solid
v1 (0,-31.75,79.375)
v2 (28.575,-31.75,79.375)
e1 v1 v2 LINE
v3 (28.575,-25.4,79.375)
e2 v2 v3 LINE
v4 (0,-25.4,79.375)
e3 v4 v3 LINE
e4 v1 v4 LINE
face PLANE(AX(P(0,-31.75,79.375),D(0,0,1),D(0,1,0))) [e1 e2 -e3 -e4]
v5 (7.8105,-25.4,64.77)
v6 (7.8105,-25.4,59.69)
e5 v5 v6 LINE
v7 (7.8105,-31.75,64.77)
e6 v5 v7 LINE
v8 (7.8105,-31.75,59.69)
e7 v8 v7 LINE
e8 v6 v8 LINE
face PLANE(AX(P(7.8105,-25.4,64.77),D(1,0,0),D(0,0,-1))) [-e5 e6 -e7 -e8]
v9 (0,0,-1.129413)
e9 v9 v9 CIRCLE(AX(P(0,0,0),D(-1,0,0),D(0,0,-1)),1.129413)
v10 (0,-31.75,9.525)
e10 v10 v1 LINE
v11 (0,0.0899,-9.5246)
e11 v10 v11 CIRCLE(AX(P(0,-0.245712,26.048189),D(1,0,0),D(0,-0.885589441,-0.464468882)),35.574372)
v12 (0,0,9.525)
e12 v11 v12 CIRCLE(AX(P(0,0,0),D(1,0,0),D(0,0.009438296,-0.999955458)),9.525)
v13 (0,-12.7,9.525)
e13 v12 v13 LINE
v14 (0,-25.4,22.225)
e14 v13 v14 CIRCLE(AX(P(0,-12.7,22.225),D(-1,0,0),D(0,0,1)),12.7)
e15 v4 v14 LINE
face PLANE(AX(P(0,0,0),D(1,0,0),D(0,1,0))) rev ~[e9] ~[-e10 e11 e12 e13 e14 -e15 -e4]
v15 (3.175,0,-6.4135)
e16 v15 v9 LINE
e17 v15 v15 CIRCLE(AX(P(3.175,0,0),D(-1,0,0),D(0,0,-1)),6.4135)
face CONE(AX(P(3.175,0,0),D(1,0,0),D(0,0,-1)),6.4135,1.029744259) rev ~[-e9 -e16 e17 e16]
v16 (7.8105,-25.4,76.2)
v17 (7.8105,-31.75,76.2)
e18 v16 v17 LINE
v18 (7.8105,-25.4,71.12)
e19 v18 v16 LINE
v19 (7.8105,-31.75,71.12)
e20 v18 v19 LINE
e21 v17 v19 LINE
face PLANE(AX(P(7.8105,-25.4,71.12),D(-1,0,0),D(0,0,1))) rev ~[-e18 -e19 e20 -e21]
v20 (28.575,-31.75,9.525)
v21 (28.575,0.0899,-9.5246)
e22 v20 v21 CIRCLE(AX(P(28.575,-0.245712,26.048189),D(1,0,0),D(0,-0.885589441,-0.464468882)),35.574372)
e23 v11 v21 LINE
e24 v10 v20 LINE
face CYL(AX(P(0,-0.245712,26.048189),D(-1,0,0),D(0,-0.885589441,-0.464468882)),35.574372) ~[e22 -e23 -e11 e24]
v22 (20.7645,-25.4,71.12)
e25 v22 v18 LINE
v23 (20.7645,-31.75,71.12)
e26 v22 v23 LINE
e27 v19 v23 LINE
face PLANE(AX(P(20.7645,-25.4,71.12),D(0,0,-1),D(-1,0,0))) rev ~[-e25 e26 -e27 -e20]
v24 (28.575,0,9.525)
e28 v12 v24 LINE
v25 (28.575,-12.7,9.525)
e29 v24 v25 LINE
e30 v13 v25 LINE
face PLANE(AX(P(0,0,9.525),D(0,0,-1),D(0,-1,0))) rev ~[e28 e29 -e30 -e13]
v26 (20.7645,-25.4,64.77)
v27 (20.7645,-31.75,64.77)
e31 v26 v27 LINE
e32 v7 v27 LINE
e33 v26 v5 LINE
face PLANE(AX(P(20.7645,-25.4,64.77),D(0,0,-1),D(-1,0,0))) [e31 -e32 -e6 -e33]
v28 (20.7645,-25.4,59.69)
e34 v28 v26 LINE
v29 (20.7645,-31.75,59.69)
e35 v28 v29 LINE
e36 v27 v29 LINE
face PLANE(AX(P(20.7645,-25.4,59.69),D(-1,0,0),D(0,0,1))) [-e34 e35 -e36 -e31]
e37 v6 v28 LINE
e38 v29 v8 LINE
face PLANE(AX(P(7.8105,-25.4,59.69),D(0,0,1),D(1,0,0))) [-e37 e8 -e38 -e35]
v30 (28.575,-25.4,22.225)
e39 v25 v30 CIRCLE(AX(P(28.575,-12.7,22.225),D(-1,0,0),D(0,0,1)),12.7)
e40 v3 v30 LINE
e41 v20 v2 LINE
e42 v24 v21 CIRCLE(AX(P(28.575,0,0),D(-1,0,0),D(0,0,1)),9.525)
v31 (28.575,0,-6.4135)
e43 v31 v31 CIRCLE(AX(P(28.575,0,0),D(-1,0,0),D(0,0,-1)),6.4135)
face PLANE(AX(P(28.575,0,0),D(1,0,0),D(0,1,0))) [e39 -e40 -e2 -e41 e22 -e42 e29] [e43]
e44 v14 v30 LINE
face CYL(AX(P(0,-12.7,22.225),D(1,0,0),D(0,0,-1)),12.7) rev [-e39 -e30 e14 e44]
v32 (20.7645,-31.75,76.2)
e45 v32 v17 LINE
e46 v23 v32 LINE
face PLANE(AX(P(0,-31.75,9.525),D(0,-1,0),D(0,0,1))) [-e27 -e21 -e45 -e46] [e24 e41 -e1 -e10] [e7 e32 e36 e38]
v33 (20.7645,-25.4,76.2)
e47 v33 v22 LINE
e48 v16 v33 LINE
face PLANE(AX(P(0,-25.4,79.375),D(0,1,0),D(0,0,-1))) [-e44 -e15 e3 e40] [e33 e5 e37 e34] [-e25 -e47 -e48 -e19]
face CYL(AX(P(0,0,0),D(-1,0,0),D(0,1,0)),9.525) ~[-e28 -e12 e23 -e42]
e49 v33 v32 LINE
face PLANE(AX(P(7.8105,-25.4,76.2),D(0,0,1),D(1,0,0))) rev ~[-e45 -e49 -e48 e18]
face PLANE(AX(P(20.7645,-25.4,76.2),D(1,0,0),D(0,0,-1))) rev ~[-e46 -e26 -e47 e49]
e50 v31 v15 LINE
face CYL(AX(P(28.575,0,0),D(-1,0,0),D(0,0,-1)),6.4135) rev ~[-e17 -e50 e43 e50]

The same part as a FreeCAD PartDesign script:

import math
import FreeCAD as App
import Part
import Sketcher
Q = App.Units.Quantity


def edges_at(feature, points):
    """Names of the edges that pass closest to the given points."""
    edges = feature.Shape.Edges
    near = lambda p: min(range(len(edges)), key=lambda i: edges[i].distToShape(Part.Vertex(*p))[0])
    return sorted({f"Edge{near(p) + 1}" for p in points})


def add_polygon(sketch, points):
    """Adds a closed chain of lines whose ends are joined by coincident constraints."""
    first, n = sketch.GeometryCount, len(points)
    for a, b in zip(points, points[1:] + points[:1]):
        sketch.addGeometry(Part.LineSegment(App.Vector(*a, 0), App.Vector(*b, 0)), False)
    for i in range(n):
        sketch.addConstraint(Sketcher.Constraint("Coincident", first + i, 2, first + (i + 1) % n, 1))

doc = App.newDocument("Part")
body = doc.addObject("PartDesign::Body", "Body")

# Sketch on YZ plane
sketch1 = body.newObject("Sketcher::SketchObject", "Sketch")
sketch1.AttachmentSupport = (doc.getObject("YZ_Plane"), [""])
sketch1.MapMode = "FlatFace"
sketch1.addGeometry(Part.ArcOfCircle(Part.Circle(App.Vector(0, 0, 0), App.Vector(0, 0, 1), 9.525), math.radians(-89.459217), math.radians(90)), False)
sketch1.addGeometry(Part.LineSegment(App.Vector(0, 9.525, 0), App.Vector(-25.4, 9.525, 0)), False)
sketch1.addGeometry(Part.LineSegment(App.Vector(-25.4, 9.525, 0), App.Vector(-25.4, 79.375, 0)), False)
sketch1.addGeometry(Part.LineSegment(App.Vector(-25.4, 79.375, 0), App.Vector(-31.75, 79.375, 0)), False)
sketch1.addGeometry(Part.LineSegment(App.Vector(-31.75, 79.375, 0), App.Vector(-31.75, 9.525, 0)), False)
sketch1.addGeometry(Part.ArcOfCircle(Part.Circle(App.Vector(-0.2457, 26.0482, 0), App.Vector(0, 0, 1), 35.574388), math.radians(-152.324138), math.radians(-89.459478)), False)
sketch1.addConstraint(Sketcher.Constraint("Tangent", 0, 2, 1, 1))
sketch1.addConstraint(Sketcher.Constraint("Coincident", 1, 2, 2, 1))
sketch1.addConstraint(Sketcher.Constraint("Coincident", 2, 2, 3, 1))
sketch1.addConstraint(Sketcher.Constraint("Coincident", 3, 2, 4, 1))
sketch1.addConstraint(Sketcher.Constraint("Coincident", 4, 2, 5, 1))
sketch1.addConstraint(Sketcher.Constraint("Tangent", 5, 2, 0, 1))
sketch1.addConstraint(Sketcher.Constraint("Horizontal", 1))
sketch1.addConstraint(Sketcher.Constraint("Vertical", 2))
sketch1.addConstraint(Sketcher.Constraint("Horizontal", 3))
sketch1.addConstraint(Sketcher.Constraint("Vertical", 4))
sketch1.addConstraint(Sketcher.Constraint("Coincident", 0, 3, -1, 1))
sketch1.addConstraint(Sketcher.Constraint("Horizontal", 1, 2, 4, 2))
sketch1.addConstraint(Sketcher.Constraint("DistanceX", 1, 2, 1, 1, Q("1 in")))
sketch1.addConstraint(Sketcher.Constraint("Radius", 0, Q("0.375 in")))
sketch1.addConstraint(Sketcher.Constraint("DistanceX", 3, 2, 3, 1, Q("0.25 in")))
sketch1.addConstraint(Sketcher.Constraint("DistanceY", 2, 1, 2, 2, Q("2.75 in")))
sketch1.addConstraint(Sketcher.Constraint("Radius", 5, Q("35.5744 mm")))
pad1 = body.newObject("PartDesign::Pad", "Pad")
pad1.Profile = sketch1
pad1.Length = Q("1.125 in")
doc.recompute()

fillet = body.newObject("PartDesign::Fillet", "Fillet")
fillet.Base = (pad1, edges_at(pad1, [(14.287, -25.4, 9.525)]))
fillet.Radius = Q("0.5 in")

# Sketch on YZ plane
sketch2 = body.newObject("Sketcher::SketchObject", "Sketch001")
sketch2.AttachmentSupport = (doc.getObject("YZ_Plane"), [""])
sketch2.MapMode = "FlatFace"
sketch2.AttachmentOffset = App.Placement(App.Vector(0, 0, 1.125 * 25.4), App.Rotation())
sketch2.addGeometry(Part.Circle(App.Vector(0, 0, 0), App.Vector(0, 0, 1), 6.4135), False)
sketch2.addConstraint(Sketcher.Constraint("Coincident", 0, 3, -1, 1))
sketch2.addConstraint(Sketcher.Constraint("Diameter", 0, Q("0.505 in")))
doc.recompute()
hole = body.newObject("PartDesign::Hole", "Hole")
hole.Profile = sketch2
hole.ThreadType = "None"
hole.Diameter = Q("0.505 in")
hole.DepthType = "Dimension"
hole.Depth = Q("1 in")
hole.DrillPoint = "Angled"
hole.DrillPointAngle = 118

# Sketch on XZ plane
sketch3 = body.newObject("Sketcher::SketchObject", "Sketch002")
sketch3.AttachmentSupport = (doc.getObject("XZ_Plane"), [""])
sketch3.MapMode = "FlatFace"
sketch3.AttachmentOffset = App.Placement(App.Vector(0, 0, 1 * 25.4), App.Rotation())
add_polygon(sketch3, [(7.8105, 71.12), (7.8105, 76.2), (20.7645, 76.2), (20.7645, 71.12)])  # lines 0-3
add_polygon(sketch3, [(20.7645, 59.69), (7.8105, 59.69), (7.8105, 64.77), (20.7645, 64.77)])  # lines 4-7
sketch3.addConstraint(Sketcher.Constraint("Vertical", 0))
sketch3.addConstraint(Sketcher.Constraint("Horizontal", 1))
sketch3.addConstraint(Sketcher.Constraint("Vertical", 2))
sketch3.addConstraint(Sketcher.Constraint("Horizontal", 3))
sketch3.addConstraint(Sketcher.Constraint("Horizontal", 4))
sketch3.addConstraint(Sketcher.Constraint("Vertical", 5))
sketch3.addConstraint(Sketcher.Constraint("Horizontal", 6))
sketch3.addConstraint(Sketcher.Constraint("Vertical", 7))
sketch3.addConstraint(Sketcher.Constraint("Vertical", 3, 2, 4, 2))
sketch3.addConstraint(Sketcher.Constraint("Vertical", 2, 2, 6, 2))
sketch3.addConstraint(Sketcher.Constraint("Equal", 2, 5))
sketch3.addConstraint(Sketcher.Constraint("DistanceY", 0, 1, 0, 2, Q("0.2 in")))
sketch3.addConstraint(Sketcher.Constraint("DistanceX", 1, 1, 1, 2, Q("0.51 in")))
sketch3.addConstraint(Sketcher.Constraint("DistanceY", 5, 2, 3, 2, Q("0.25 in")))
sketch3.addConstraint(Sketcher.Constraint("DistanceY", -1, 1, 0, 2, Q("3 in")))
sketch3.addConstraint(Sketcher.Constraint("DistanceX", -1, 1, 0, 2, Q("0.3075 in")))
pocket1 = body.newObject("PartDesign::Pocket", "Pocket")
pocket1.Profile = sketch3
pocket1.Length = Q("1 in")
pocket1.Reversed = True

doc.recompute()
